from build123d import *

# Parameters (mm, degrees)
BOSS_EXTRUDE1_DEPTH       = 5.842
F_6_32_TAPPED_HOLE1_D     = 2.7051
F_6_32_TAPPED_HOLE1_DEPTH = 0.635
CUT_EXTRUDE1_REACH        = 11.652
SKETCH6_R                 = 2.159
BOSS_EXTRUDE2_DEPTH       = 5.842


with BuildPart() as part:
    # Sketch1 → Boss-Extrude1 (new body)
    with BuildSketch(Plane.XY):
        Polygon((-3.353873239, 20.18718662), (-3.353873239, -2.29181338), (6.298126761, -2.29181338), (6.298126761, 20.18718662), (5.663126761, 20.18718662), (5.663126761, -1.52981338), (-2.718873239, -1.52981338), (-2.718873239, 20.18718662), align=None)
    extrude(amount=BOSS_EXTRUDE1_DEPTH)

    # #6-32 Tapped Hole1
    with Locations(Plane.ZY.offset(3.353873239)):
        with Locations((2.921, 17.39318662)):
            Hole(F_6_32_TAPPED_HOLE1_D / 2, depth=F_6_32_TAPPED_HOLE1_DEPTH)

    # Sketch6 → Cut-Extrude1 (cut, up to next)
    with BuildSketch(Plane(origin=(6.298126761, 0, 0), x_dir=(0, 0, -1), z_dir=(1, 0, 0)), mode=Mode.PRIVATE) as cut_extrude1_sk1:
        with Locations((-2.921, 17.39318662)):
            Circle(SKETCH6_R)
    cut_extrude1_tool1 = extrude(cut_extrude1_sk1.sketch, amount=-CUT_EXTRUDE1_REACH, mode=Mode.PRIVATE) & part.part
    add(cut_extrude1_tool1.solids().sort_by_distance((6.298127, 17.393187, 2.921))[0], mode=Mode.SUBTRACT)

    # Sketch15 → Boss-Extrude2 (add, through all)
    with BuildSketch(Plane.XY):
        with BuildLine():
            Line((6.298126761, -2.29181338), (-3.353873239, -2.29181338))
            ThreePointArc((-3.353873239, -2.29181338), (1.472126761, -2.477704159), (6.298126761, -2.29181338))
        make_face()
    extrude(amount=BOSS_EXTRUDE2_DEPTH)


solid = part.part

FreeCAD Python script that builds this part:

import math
import FreeCAD as App
import Part
import Sketcher
from FreeCAD import Vector
Q = App.Units.Quantity


def add_polygon(sketch, points):
    """Adds a closed chain of lines whose ends are joined by coincident constraints."""
    first, n = sketch.GeometryCount, len(points)
    for a, b in zip(points, points[1:] + points[:1]):
        sketch.addGeometry(Part.LineSegment(App.Vector(*a, 0), App.Vector(*b, 0)), False)
    for i in range(n):
        sketch.addConstraint(Sketcher.Constraint("Coincident", first + i, 2, first + (i + 1) % n, 1))

doc = App.newDocument("Part")
body = doc.addObject("PartDesign::Body", "Body")

# Sketch on XY plane
sketch1 = body.newObject("Sketcher::SketchObject", "Sketch")
sketch1.AttachmentSupport = (doc.getObject("XY_Plane"), [""])
sketch1.MapMode = "FlatFace"
add_polygon(sketch1, [(-3.4, 20.2), (-3.4, -2.3), (6.3, -2.3), (6.3, 20.2), (5.7, 20.2), (5.7, -1.5), (-2.7, -1.5), (-2.7, 20.2)])  # lines 0-7
sketch1.addConstraint([
    Sketcher.Constraint("Vertical", 0),
    Sketcher.Constraint("Horizontal", 1),
    Sketcher.Constraint("Vertical", 2),
    Sketcher.Constraint("Horizontal", 3),
    Sketcher.Constraint("Vertical", 4),
    Sketcher.Constraint("Horizontal", 5),
    Sketcher.Constraint("Vertical", 6),
    Sketcher.Constraint("Horizontal", 7),
    Sketcher.Constraint("Horizontal", 3, 2, 6, 2),
    Sketcher.Constraint("Equal", 3, 7),
    Sketcher.Constraint("DistanceX", 1, 1, 1, 2, Q("0.38 in")),
    Sketcher.Constraint("DistanceX", 5, 2, 5, 1, Q("0.33 in")),
    Sketcher.Constraint("DistanceY", 0, 2, 0, 1, Q("0.885 in")),
    Sketcher.Constraint("DistanceY", 4, 2, 4, 1, Q("0.855 in")),
    Sketcher.Constraint("DistanceX", 0, 2, -1, 1, Q("3.353873 mm")),
    Sketcher.Constraint("DistanceY", 0, 2, -1, 1, Q("2.291813 mm")),
])
pad1 = body.newObject("PartDesign::Pad", "Pad")
pad1.Profile = sketch1
pad1.Length = Q("0.23 in")

# Sketch on YZ plane
sketch2 = body.newObject("Sketcher::SketchObject", "Sketch001")
sketch2.AttachmentSupport = (doc.getObject("YZ_Plane"), [""])
sketch2.MapMode = "FlatFace"
sketch2.AttachmentOffset = App.Placement(Vector(0, 0, -3.353873), App.Rotation())
sketch2.addGeometry(Part.Circle(Vector(17.4, 2.9, 0), Vector(0, 0, 1), 1.4), False)
sketch2.addConstraint([
    Sketcher.Constraint("Diameter", 0, Q("0.1065 in")),
    Sketcher.Constraint("DistanceY", -1, 1, 0, 3, Q("0.115 in")),
    Sketcher.Constraint("DistanceX", -1, 1, 0, 3, Q("17.393187 mm")),
])
doc.recompute()
hole = body.newObject("PartDesign::Hole", "Hole")
hole.Profile = sketch2
hole.ThreadType = "None"
hole.Diameter = Q("0.1065 in")
hole.DepthType = "Dimension"
hole.Depth = Q("0.025 in")
hole.DrillPoint = "Flat"
hole.Reversed = True

# Sketch on YZ plane
sketch3 = body.newObject("Sketcher::SketchObject", "Sketch002")
sketch3.AttachmentSupport = (doc.getObject("YZ_Plane"), [""])
sketch3.MapMode = "FlatFace"
sketch3.AttachmentOffset = App.Placement(Vector(0, 0, 6.298127), App.Rotation())
sketch3.addGeometry(Part.Circle(Vector(17.4, 2.9, 0), Vector(0, 0, 1), 2.2), False)
sketch3.addConstraint([
    Sketcher.Constraint("Diameter", 0, Q("0.17 in")),
    Sketcher.Constraint("DistanceY", -1, 1, 0, 3, Q("0.115 in")),
    Sketcher.Constraint("DistanceX", -1, 1, 0, 3, Q("17.393187 mm")),
])
pocket1 = body.newObject("PartDesign::Pocket", "Pocket")
pocket1.Profile = sketch3
pocket1.Type = "UpToFirst"

# Sketch on XY plane
sketch4 = body.newObject("Sketcher::SketchObject", "Sketch003")
sketch4.AttachmentSupport = (doc.getObject("XY_Plane"), [""])
sketch4.MapMode = "FlatFace"
sketch4.addGeometry([
    Part.LineSegment(Vector(6, -2, 0), Vector(-3, -2, 0)),
    Part.ArcOfCircle(Part.Circle(Vector(1, 60, 0), Vector(0, 0, 1), 63), math.radians(-94.41), math.radians(-85.59)),
], False)
sketch4.addConstraint([
    Sketcher.Constraint("Coincident", 0, 1, 1, 2),
    Sketcher.Constraint("Coincident", 1, 1, 0, 2),
    Sketcher.Constraint("Horizontal", 0),
    Sketcher.Constraint("Radius", 1, Q("2.47 in")),
    Sketcher.Constraint("DistanceX", 0, 2, 0, 1, Q("0.38 in")),
    Sketcher.Constraint("DistanceX", -1, 1, 1, 3, Q("1.472127 mm")),
    Sketcher.Constraint("DistanceY", -1, 1, 1, 3, Q("60.260296 mm")),
])
pad2 = body.newObject("PartDesign::Pad", "Pad001")
pad2.Profile = sketch4
pad2.Length = Q("0.23 in")

doc.recompute()
